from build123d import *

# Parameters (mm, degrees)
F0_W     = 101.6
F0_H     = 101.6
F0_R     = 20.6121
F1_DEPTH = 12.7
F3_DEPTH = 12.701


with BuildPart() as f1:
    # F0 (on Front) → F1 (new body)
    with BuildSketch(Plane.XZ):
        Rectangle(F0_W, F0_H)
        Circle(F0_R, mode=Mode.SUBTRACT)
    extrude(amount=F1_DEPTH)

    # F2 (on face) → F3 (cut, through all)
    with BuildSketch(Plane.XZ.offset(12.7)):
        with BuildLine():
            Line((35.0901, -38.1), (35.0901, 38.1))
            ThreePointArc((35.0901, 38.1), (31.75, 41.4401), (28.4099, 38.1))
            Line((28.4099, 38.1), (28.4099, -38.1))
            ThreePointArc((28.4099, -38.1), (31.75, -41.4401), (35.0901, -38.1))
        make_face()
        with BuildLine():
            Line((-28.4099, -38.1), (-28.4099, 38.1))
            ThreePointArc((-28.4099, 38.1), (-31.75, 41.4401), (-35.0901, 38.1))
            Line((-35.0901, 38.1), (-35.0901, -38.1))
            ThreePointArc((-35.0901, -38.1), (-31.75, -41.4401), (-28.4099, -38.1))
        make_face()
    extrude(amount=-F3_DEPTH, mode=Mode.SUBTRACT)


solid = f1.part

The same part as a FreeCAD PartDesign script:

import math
import FreeCAD as App
import Part
import Sketcher
from FreeCAD import Vector
Q = App.Units.Quantity

doc = App.newDocument("Part")
params = doc.addObject("Spreadsheet::Sheet", "Params")
for row, (alias, value) in enumerate([
    ("sketch1_width", "4 in"),
    ("sketch1_diameter", "1.623 in"),
    ("pad1_length", "0.5 in"),
    ("sketch2_height", "3 in"),
], start=1):
    params.set(f"A{row}", alias)
    params.set(f"B{row}", "=" + value)
    params.setAlias(f"B{row}", alias)

body = doc.addObject("PartDesign::Body", "Body")

# Sketch on XZ plane
sketch1 = body.newObject("Sketcher::SketchObject", "Sketch")
sketch1.AttachmentSupport = (doc.getObject("XZ_Plane"), [""])
sketch1.MapMode = "FlatFace"
sketch1.addGeometry([
    Part.LineSegment(Vector(-50.8, 50.8, 0), Vector(-50.8, -50.8, 0)),  # 0
    Part.LineSegment(Vector(-50.8, -50.8, 0), Vector(50.8, -50.8, 0)),  # 1
    Part.LineSegment(Vector(50.8, -50.8, 0), Vector(50.8, 50.8, 0)),  # 2
    Part.LineSegment(Vector(50.8, 50.8, 0), Vector(-50.8, 50.8, 0)),  # 3
    Part.Circle(Vector(0, 0, 0), Vector(0, 0, 1), 20.6121),  # 4
], False)
sketch1.addConstraint([
    Sketcher.Constraint("Coincident", 0, 2, 1, 1),
    Sketcher.Constraint("Coincident", 1, 2, 2, 1),
    Sketcher.Constraint("Coincident", 2, 2, 3, 1),
    Sketcher.Constraint("Coincident", 3, 2, 0, 1),
    Sketcher.Constraint("Vertical", 0),
    Sketcher.Constraint("Horizontal", 1),
    Sketcher.Constraint("Vertical", 2),
    Sketcher.Constraint("Horizontal", 3),
    Sketcher.Constraint("Coincident", 4, 3, -1, 1),
    Sketcher.Constraint("Symmetric", 0, 2, 2, 2, -1, 1),
    Sketcher.Constraint("Equal", 3, 0),
    Sketcher.Constraint("DistanceX", 1, 1, 1, 2, Q("4 in")),
    Sketcher.Constraint("Diameter", 4, Q("1.623 in")),
])
sketch1.setExpression("Constraints[11]", "Params.sketch1_width")
sketch1.setExpression("Constraints[12]", "Params.sketch1_diameter")
pad1 = body.newObject("PartDesign::Pad", "Pad")
pad1.Profile = sketch1
pad1.setExpression("Length", "Params.pad1_length")

# Sketch on XZ plane
sketch2 = body.newObject("Sketcher::SketchObject", "Sketch001")
sketch2.AttachmentSupport = (doc.getObject("XZ_Plane"), [""])
sketch2.MapMode = "FlatFace"
sketch2.AttachmentOffset = App.Placement(Vector(0, 0, 0.5 * 25.4), App.Rotation())
sketch2.addGeometry([
    Part.LineSegment(Vector(35.0901, -38.1, 0), Vector(35.0901, 38.1, 0)),  # 0
    Part.ArcOfCircle(Part.Circle(Vector(31.75, 38.1, 0), Vector(0, 0, 1), 3.3401), math.radians(0), math.radians(180)),  # 1
    Part.LineSegment(Vector(28.4099, 38.1, 0), Vector(28.4099, -38.1, 0)),  # 2
    Part.ArcOfCircle(Part.Circle(Vector(31.75, -38.1, 0), Vector(0, 0, 1), 3.3401), math.radians(180), math.radians(360)),  # 3
    Part.LineSegment(Vector(-28.4099, -38.1, 0), Vector(-28.4099, 38.1, 0)),  # 4
    Part.ArcOfCircle(Part.Circle(Vector(-31.75, 38.1, 0), Vector(0, 0, 1), 3.3401), math.radians(0), math.radians(180)),  # 5
    Part.LineSegment(Vector(-35.0901, 38.1, 0), Vector(-35.0901, -38.1, 0)),  # 6
    Part.ArcOfCircle(Part.Circle(Vector(-31.75, -38.1, 0), Vector(0, 0, 1), 3.3401), math.radians(180), math.radians(360)),  # 7
], False)
sketch2.addConstraint([
    Sketcher.Constraint("Tangent", 0, 2, 1, 1),
    Sketcher.Constraint("Tangent", 1, 2, 2, 1),
    Sketcher.Constraint("Tangent", 2, 2, 3, 1),
    Sketcher.Constraint("Tangent", 3, 2, 0, 1),
    Sketcher.Constraint("Tangent", 4, 2, 5, 1),
    Sketcher.Constraint("Tangent", 5, 2, 6, 1),
    Sketcher.Constraint("Tangent", 6, 2, 7, 1),
    Sketcher.Constraint("Tangent", 7, 2, 4, 1),
    Sketcher.Constraint("Vertical", 0),
    Sketcher.Constraint("Vertical", 2),
    Sketcher.Constraint("Vertical", 4),
    Sketcher.Constraint("Vertical", 6),
    Sketcher.Constraint("Equal", 3, 5),
    Sketcher.Constraint("Symmetric", 3, 3, 5, 3, -1, 1),
    Sketcher.Constraint("Horizontal", 1, 3, 5, 3),
    Sketcher.Constraint("Horizontal", 3, 3, 7, 3),
    Sketcher.Constraint("DistanceY", 0, 1, 0, 2, Q("3 in")),
    Sketcher.Constraint("Radius", 1, Q("0.1315 in")),
    Sketcher.Constraint("DistanceX", 5, 3, 1, 3, Q("2.5 in")),
])
sketch2.setExpression("Constraints[16]", "Params.sketch2_height")
pocket1 = body.newObject("PartDesign::Pocket", "Pocket")
pocket1.Profile = sketch2
pocket1.Type = "ThroughAll"

doc.recompute()
